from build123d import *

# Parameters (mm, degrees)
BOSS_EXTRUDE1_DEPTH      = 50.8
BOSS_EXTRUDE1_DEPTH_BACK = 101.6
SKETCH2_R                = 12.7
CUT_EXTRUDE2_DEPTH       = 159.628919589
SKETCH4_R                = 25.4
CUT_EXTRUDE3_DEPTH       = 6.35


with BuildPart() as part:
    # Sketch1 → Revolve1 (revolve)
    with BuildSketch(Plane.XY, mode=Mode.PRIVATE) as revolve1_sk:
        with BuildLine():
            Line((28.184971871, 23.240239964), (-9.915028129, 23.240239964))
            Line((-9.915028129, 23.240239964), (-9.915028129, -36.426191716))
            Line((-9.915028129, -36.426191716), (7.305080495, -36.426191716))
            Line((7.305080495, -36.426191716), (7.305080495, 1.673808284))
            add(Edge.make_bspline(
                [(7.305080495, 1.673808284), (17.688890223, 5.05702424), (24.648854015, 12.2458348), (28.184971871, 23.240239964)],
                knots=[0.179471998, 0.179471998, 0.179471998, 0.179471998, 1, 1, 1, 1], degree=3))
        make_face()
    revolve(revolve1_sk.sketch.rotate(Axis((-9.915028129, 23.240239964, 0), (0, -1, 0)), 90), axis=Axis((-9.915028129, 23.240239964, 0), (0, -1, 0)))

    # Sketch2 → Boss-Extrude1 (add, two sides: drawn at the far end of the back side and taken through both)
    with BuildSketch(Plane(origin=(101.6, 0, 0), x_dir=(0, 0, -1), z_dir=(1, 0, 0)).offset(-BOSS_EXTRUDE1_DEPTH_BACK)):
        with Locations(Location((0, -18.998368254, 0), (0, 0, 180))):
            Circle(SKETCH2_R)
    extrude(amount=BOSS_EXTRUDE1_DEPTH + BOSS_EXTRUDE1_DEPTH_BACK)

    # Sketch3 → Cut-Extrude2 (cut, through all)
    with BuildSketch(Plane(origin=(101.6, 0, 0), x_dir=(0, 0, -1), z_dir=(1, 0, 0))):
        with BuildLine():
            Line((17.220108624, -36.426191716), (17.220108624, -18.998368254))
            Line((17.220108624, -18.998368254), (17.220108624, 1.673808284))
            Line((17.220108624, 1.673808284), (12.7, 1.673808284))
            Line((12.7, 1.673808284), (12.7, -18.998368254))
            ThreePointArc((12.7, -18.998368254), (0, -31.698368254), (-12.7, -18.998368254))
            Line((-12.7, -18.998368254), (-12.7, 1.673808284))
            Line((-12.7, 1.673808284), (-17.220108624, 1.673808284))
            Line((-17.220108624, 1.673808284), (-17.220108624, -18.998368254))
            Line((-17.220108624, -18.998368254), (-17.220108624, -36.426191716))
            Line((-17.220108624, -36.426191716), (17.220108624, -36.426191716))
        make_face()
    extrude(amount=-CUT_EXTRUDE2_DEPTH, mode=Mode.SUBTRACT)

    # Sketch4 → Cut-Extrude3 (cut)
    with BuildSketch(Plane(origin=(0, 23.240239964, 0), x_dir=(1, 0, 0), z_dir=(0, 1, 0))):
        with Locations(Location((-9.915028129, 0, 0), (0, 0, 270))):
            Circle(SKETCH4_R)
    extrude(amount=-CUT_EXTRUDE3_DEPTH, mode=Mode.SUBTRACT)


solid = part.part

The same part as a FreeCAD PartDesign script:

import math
import FreeCAD as App
import Part
import Sketcher
from FreeCAD import Vector
Q = App.Units.Quantity

doc = App.newDocument("Part")
body = doc.addObject("PartDesign::Body", "Body")

# Sketch on XY plane
sketch1 = body.newObject("Sketcher::SketchObject", "Sketch")
sketch1.AttachmentSupport = (doc.getObject("XY_Plane"), [""])
sketch1.MapMode = "FlatFace"
sketch1.addGeometry([
    Part.LineSegment(Vector(28.184972, 23.24024, 0), Vector(-9.915028, 23.24024, 0)),  # 0
    Part.LineSegment(Vector(-9.915028, 23.24024, 0), Vector(-9.915028, -36.426192, 0)),  # 1
    Part.LineSegment(Vector(-9.915028, -36.426192, 0), Vector(7.30508, -36.426192, 0)),  # 2
    Part.LineSegment(Vector(7.30508, -36.426192, 0), Vector(7.30508, 1.673808, 0)),  # 3
    Part.BSplineCurve([Vector(7.30508, 1.673808, 0), Vector(17.68889, 5.057024, 0), Vector(24.648854, 12.245835, 0), Vector(28.184972, 23.24024, 0)], [4, 4], [0.179471998, 1], False, 3, [1, 1, 1, 1], False),  # 4
], False)
sketch1.addGeometry(Part.LineSegment(Vector(-9.915028, 23.24024, 0), Vector(-9.915028, -36.426192, 0)), True)  # axis
sketch1.addConstraint([
    Sketcher.Constraint("Block", 4),
    Sketcher.Constraint("Coincident", 0, 2, 1, 1),
    Sketcher.Constraint("Coincident", 1, 2, 2, 1),
    Sketcher.Constraint("Coincident", 2, 2, 3, 1),
    Sketcher.Constraint("Coincident", 3, 2, 4, 1),
    Sketcher.Constraint("Coincident", 4, 2, 0, 1),
    Sketcher.Constraint("Horizontal", 0),
    Sketcher.Constraint("Vertical", 1),
    Sketcher.Constraint("Horizontal", 2),
    Sketcher.Constraint("Vertical", 3),
    Sketcher.Constraint("Vertical", 5),
    Sketcher.Constraint("Coincident", 5, 1, 0, 2),
    Sketcher.Constraint("Horizontal", 2, 2, 5, 2),
    Sketcher.Constraint("Equal", 0, 3),
    Sketcher.Constraint("DistanceX", 0, 2, 0, 1, Q("1.5 in")),
])
revolution = body.newObject("PartDesign::Revolution", "Revolution")
revolution.Profile = sketch1
revolution.ReferenceAxis = (sketch1, ["Axis0"])
revolution.Angle = 360

# Sketch on YZ plane
sketch2 = body.newObject("Sketcher::SketchObject", "Sketch001")
sketch2.AttachmentSupport = (doc.getObject("YZ_Plane"), [""])
sketch2.MapMode = "FlatFace"
sketch2.AttachmentOffset = App.Placement(Vector(0, 0, 4 * 25.4), App.Rotation())
sketch2.addGeometry(Part.Circle(Vector(-19, 0, 0), Vector(0, 0, 1), 13), False)
sketch2.addConstraint([
    Sketcher.Constraint("PointOnObject", 0, 3, -1),
    Sketcher.Constraint("Diameter", 0, Q("1 in")),
    Sketcher.Constraint("DistanceX", 0, 3, -1, 1, 18.998368),
])
pad1 = body.newObject("PartDesign::Pad", "Pad")
pad1.Profile = sketch2
pad1.Type = "TwoLengths"
pad1.Length = Q("2 in")
pad1.Length2 = Q("4 in")

# Sketch on YZ plane
sketch3 = body.newObject("Sketcher::SketchObject", "Sketch002")
sketch3.AttachmentSupport = (doc.getObject("YZ_Plane"), [""])
sketch3.MapMode = "FlatFace"
sketch3.AttachmentOffset = App.Placement(Vector(0, 0, 4 * 25.4), App.Rotation())
sketch3.addGeometry([
    Part.LineSegment(Vector(-36.4, -17.2, 0), Vector(1.7, -17.2, 0)),  # 0
    Part.LineSegment(Vector(1.7, -17.2, 0), Vector(1.7, -12.7, 0)),  # 1
    Part.LineSegment(Vector(1.7, -12.7, 0), Vector(-19, -12.7, 0)),  # 2
    Part.ArcOfCircle(Part.Circle(Vector(-19, 0, 0), Vector(0, 0, 1), 12.7), math.radians(90), math.radians(270)),  # 3
    Part.LineSegment(Vector(-19, 12.7, 0), Vector(1.7, 12.7, 0)),  # 4
    Part.LineSegment(Vector(1.7, 12.7, 0), Vector(1.7, 17.2, 0)),  # 5
    Part.LineSegment(Vector(1.7, 17.2, 0), Vector(-36.4, 17.2, 0)),  # 6
    Part.LineSegment(Vector(-36.4, 17.2, 0), Vector(-36.4, -17.2, 0)),  # 7
], False)
sketch3.addConstraint([
    Sketcher.Constraint("Coincident", 0, 2, 1, 1),
    Sketcher.Constraint("Coincident", 1, 2, 2, 1),
    Sketcher.Constraint("Tangent", 2, 2, 3, 2),
    Sketcher.Constraint("Tangent", 3, 1, 4, 1),
    Sketcher.Constraint("Coincident", 4, 2, 5, 1),
    Sketcher.Constraint("Coincident", 5, 2, 6, 1),
    Sketcher.Constraint("Coincident", 6, 2, 7, 1),
    Sketcher.Constraint("Coincident", 7, 2, 0, 1),
    Sketcher.Constraint("Horizontal", 0),
    Sketcher.Constraint("Vertical", 1),
    Sketcher.Constraint("Horizontal", 2),
    Sketcher.Constraint("Horizontal", 4),
    Sketcher.Constraint("Vertical", 5),
    Sketcher.Constraint("Horizontal", 6),
    Sketcher.Constraint("Vertical", 7),
    Sketcher.Constraint("Symmetric", 1, 2, 4, 2, -1),
    Sketcher.Constraint("Equal", 1, 5),
    Sketcher.Constraint("Radius", 3, Q("0.5 in")),
    Sketcher.Constraint("DistanceX", 0, 1, 0, 2, Q("1.5 in")),
    Sketcher.Constraint("DistanceY", 1, 1, 1, 2, 4.520109),
    Sketcher.Constraint("DistanceX", 2, 2, 2, 1, 20.672177),
    Sketcher.Constraint("DistanceX", 3, 3, -1, 1, 18.998368),
])
pocket1 = body.newObject("PartDesign::Pocket", "Pocket")
pocket1.Profile = sketch3
pocket1.Type = "ThroughAll"

# Sketch on XZ plane
sketch4 = body.newObject("Sketcher::SketchObject", "Sketch003")
sketch4.AttachmentSupport = (doc.getObject("XZ_Plane"), [""])
sketch4.MapMode = "FlatFace"
sketch4.AttachmentOffset = App.Placement(Vector(0, 0, -23.24024), App.Rotation())
sketch4.addGeometry(Part.Circle(Vector(-10, 0, 0), Vector(0, 0, 1), 25), False)
sketch4.addConstraint([
    Sketcher.Constraint("PointOnObject", 0, 3, -1),
    Sketcher.Constraint("Diameter", 0, Q("2 in")),
    Sketcher.Constraint("DistanceX", 0, 3, -1, 1, 9.915028),
])
pocket2 = body.newObject("PartDesign::Pocket", "Pocket001")
pocket2.Profile = sketch4
pocket2.Length = Q("0.25 in")
pocket2.Reversed = True

doc.recompute()
